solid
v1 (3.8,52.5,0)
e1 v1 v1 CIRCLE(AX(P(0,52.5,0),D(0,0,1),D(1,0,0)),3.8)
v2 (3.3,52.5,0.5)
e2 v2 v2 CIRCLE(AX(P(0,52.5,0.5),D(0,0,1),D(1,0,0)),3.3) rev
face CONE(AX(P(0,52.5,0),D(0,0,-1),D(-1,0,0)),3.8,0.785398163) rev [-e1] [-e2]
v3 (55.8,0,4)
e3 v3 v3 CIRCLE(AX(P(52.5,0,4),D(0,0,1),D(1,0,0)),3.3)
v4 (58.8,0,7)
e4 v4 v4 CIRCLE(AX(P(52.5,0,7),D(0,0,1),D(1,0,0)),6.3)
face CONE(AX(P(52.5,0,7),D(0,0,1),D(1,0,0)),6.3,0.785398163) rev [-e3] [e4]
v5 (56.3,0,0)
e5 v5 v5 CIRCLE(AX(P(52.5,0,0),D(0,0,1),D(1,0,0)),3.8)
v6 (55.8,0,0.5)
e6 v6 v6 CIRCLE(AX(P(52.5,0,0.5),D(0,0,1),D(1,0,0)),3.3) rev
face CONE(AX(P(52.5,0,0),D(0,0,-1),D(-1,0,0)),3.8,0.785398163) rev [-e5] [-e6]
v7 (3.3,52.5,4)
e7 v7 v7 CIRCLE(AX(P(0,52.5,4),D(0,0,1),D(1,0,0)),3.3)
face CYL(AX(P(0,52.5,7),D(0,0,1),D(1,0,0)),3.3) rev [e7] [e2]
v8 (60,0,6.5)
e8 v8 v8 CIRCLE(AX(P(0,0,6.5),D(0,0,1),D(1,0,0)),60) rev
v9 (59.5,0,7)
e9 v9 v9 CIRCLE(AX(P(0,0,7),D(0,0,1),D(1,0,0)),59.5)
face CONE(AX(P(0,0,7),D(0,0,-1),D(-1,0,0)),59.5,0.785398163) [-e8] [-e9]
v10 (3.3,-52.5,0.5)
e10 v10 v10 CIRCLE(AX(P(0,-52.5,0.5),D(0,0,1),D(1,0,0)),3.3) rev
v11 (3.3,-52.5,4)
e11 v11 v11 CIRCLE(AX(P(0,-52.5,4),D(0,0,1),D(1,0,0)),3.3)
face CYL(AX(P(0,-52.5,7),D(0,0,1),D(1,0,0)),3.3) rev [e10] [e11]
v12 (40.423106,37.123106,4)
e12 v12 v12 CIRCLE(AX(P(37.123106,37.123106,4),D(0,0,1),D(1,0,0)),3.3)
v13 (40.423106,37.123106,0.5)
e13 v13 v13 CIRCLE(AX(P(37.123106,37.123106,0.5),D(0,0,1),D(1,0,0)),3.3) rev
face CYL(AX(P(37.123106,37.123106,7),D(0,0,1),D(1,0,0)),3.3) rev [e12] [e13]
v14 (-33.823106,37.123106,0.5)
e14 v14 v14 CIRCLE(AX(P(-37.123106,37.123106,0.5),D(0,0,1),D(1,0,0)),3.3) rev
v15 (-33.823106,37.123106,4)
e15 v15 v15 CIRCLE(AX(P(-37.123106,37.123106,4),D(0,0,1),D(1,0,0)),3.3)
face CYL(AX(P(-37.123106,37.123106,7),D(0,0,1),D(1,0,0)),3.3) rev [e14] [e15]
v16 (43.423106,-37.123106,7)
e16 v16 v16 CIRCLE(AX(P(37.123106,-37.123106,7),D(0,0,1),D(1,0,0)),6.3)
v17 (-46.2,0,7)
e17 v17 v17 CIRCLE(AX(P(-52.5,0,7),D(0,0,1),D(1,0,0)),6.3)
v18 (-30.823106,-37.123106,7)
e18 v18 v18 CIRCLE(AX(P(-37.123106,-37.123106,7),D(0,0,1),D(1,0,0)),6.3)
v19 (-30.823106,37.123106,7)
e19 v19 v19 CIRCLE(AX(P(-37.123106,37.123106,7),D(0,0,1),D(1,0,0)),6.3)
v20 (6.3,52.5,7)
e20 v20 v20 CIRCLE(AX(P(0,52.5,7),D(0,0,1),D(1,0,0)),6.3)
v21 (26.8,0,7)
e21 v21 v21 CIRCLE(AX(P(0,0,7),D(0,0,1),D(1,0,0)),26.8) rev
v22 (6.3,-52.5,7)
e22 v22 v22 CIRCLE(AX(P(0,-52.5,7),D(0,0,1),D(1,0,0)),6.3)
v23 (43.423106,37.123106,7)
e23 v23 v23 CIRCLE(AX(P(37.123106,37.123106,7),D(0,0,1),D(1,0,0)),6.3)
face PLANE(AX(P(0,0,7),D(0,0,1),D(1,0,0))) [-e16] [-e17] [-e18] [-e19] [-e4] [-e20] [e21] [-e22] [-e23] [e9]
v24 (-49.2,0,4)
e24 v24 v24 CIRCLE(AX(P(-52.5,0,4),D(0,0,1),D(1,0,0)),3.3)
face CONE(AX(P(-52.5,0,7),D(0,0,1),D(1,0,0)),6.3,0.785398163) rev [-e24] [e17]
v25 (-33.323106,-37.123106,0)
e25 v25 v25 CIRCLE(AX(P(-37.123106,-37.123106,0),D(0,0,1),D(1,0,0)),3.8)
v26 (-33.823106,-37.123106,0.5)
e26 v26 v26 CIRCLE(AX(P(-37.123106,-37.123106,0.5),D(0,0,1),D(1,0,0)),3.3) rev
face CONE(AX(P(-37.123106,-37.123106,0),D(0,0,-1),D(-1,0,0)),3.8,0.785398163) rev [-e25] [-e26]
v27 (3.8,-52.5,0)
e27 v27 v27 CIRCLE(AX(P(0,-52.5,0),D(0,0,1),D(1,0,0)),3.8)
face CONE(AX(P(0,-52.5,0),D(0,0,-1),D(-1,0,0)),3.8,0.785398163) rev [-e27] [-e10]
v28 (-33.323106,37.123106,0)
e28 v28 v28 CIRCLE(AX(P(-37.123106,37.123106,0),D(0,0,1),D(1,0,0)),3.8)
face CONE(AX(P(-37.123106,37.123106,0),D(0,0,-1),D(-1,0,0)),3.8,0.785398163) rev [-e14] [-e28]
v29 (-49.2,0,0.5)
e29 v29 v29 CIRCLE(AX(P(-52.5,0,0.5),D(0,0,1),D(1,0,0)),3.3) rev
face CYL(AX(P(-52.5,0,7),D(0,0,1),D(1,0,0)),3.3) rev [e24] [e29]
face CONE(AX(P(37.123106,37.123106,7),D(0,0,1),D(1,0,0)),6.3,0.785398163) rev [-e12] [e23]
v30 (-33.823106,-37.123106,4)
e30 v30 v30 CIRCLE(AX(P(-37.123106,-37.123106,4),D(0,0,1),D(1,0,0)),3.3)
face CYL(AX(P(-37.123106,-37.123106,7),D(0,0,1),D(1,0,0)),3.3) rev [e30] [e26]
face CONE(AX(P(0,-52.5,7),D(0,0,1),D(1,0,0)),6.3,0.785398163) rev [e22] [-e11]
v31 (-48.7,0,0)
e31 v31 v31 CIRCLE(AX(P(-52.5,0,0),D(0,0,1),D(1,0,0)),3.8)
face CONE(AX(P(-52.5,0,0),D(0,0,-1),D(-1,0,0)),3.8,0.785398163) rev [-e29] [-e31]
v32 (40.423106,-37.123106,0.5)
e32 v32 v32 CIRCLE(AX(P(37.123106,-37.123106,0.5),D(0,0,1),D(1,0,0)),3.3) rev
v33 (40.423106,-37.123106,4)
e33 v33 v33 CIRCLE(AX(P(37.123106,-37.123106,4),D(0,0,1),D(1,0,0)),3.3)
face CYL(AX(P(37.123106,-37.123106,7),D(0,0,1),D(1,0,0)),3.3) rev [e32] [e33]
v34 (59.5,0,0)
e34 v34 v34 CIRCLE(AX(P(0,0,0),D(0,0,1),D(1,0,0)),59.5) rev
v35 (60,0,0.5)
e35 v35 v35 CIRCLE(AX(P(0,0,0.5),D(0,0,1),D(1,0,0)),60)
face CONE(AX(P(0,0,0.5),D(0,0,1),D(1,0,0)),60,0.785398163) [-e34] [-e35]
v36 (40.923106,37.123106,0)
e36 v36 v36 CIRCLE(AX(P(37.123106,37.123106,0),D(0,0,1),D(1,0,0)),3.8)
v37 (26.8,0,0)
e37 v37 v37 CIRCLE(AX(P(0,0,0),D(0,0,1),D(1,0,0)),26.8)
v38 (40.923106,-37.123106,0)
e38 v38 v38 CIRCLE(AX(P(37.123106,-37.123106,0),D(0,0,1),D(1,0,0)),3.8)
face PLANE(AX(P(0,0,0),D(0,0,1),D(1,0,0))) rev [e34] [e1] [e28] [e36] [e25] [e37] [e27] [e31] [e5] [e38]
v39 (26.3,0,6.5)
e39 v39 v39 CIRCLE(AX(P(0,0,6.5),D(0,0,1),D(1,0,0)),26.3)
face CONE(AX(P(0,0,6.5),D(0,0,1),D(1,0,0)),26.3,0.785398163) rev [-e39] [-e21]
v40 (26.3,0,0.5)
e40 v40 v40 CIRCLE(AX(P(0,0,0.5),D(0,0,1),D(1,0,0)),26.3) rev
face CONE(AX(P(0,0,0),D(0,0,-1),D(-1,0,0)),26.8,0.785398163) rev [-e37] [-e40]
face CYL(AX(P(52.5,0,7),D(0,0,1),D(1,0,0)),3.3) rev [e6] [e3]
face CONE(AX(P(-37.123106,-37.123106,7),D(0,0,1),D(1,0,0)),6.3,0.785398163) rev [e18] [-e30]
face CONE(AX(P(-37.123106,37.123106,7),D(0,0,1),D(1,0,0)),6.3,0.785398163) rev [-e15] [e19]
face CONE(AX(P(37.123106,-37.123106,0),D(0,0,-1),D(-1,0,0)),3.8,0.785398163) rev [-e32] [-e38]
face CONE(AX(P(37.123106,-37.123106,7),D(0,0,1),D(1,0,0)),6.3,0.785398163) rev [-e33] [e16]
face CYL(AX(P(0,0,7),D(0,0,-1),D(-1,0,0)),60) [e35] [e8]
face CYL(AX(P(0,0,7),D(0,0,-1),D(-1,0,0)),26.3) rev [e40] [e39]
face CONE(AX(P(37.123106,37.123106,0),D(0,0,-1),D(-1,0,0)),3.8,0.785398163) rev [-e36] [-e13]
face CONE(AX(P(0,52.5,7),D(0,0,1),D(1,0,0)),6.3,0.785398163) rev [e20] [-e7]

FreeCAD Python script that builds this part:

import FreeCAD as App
import Part
import Sketcher
Q = App.Units.Quantity


def edges_at(feature, points):
    """Names of the edges that pass closest to the given points."""
    edges = feature.Shape.Edges
    near = lambda p: min(range(len(edges)), key=lambda i: edges[i].distToShape(Part.Vertex(*p))[0])
    return sorted({f"Edge{near(p) + 1}" for p in points})

doc = App.newDocument("Part")
params = doc.addObject("Spreadsheet::Sheet", "Params")
for row, (alias, value) in enumerate([
    ("sketch1_diameter", "120 mm"),
    ("sketch1_diameter2", "52.6 mm"),
    ("pad1_length", "7 mm"),
    ("sketch2_diameter", "6.6 mm"),
    ("hole_diameter", "6.6 mm"),
    ("hole_csink_diameter", "12.6 mm"),
    ("chamfer_size", "0.5 mm"),
], start=1):
    params.set(f"A{row}", alias)
    params.set(f"B{row}", "=" + value)
    params.setAlias(f"B{row}", alias)

body = doc.addObject("PartDesign::Body", "Body")

# Sketch on XY plane
sketch1 = body.newObject("Sketcher::SketchObject", "Sketch")
sketch1.AttachmentSupport = (doc.getObject("XY_Plane"), [""])
sketch1.MapMode = "FlatFace"
sketch1.addGeometry(Part.Circle(App.Vector(0, 0, 0), App.Vector(0, 0, 1), 60), False)
sketch1.addGeometry(Part.Circle(App.Vector(0, 0, 0), App.Vector(0, 0, 1), 26.3), False)
sketch1.addConstraint(Sketcher.Constraint("Coincident", 0, 3, -1, 1))
sketch1.addConstraint(Sketcher.Constraint("Coincident", 1, 3, -1, 1))
sketch1.addConstraint(Sketcher.Constraint("Diameter", 0, Q("120 mm")))
sketch1.addConstraint(Sketcher.Constraint("Diameter", 1, Q("52.6 mm")))
sketch1.setExpression("Constraints[2]", "Params.sketch1_diameter")
sketch1.setExpression("Constraints[3]", "Params.sketch1_diameter2")
pad1 = body.newObject("PartDesign::Pad", "Pad")
pad1.Profile = sketch1
pad1.setExpression("Length", "Params.pad1_length")

# Sketch on XY plane
sketch2 = body.newObject("Sketcher::SketchObject", "Sketch001")
sketch2.AttachmentSupport = (doc.getObject("XY_Plane"), [""])
sketch2.MapMode = "FlatFace"
sketch2.AttachmentOffset = App.Placement(App.Vector(0, 0, 7), App.Rotation())
sketch2.addGeometry(Part.Circle(App.Vector(-37.123106, 37.123106, 0), App.Vector(0, 0, 1), 3.3), False)
sketch2.addGeometry(Part.Circle(App.Vector(0, 52.5, 0), App.Vector(0, 0, 1), 3.3), False)
sketch2.addGeometry(Part.Circle(App.Vector(37.123106, 37.123106, 0), App.Vector(0, 0, 1), 3.3), False)
sketch2.addGeometry(Part.Circle(App.Vector(52.5, 0, 0), App.Vector(0, 0, 1), 3.3), False)
sketch2.addGeometry(Part.Circle(App.Vector(37.123106, -37.123106, 0), App.Vector(0, 0, 1), 3.3), False)
sketch2.addGeometry(Part.Circle(App.Vector(0, -52.5, 0), App.Vector(0, 0, 1), 3.3), False)
sketch2.addGeometry(Part.Circle(App.Vector(-37.123106, -37.123106, 0), App.Vector(0, 0, 1), 3.3), False)
sketch2.addGeometry(Part.Circle(App.Vector(-52.5, 0, 0), App.Vector(0, 0, 1), 3.3), False)
sketch2.addConstraint(Sketcher.Constraint("Equal", 0, 1))
sketch2.addConstraint(Sketcher.Constraint("Equal", 1, 2))
sketch2.addConstraint(Sketcher.Constraint("Equal", 2, 3))
sketch2.addConstraint(Sketcher.Constraint("Equal", 3, 4))
sketch2.addConstraint(Sketcher.Constraint("Equal", 4, 5))
sketch2.addConstraint(Sketcher.Constraint("Equal", 5, 6))
sketch2.addConstraint(Sketcher.Constraint("Equal", 6, 7))
sketch2.addConstraint(Sketcher.Constraint("Symmetric", 0, 3, 4, 3, -1, 1))
sketch2.addConstraint(Sketcher.Constraint("Symmetric", 1, 3, 5, 3, -1, 1))
sketch2.addConstraint(Sketcher.Constraint("Symmetric", 2, 3, 6, 3, -1, 1))
sketch2.addConstraint(Sketcher.Constraint("Symmetric", 3, 3, 7, 3, -1, 1))
sketch2.addConstraint(Sketcher.Constraint("Symmetric", 0, 3, 2, 3, -2))
sketch2.addConstraint(Sketcher.Constraint("PointOnObject", 1, 3, -2))
sketch2.addConstraint(Sketcher.Constraint("PointOnObject", 3, 3, -1))
sketch2.addConstraint(Sketcher.Constraint("Diameter", 0, Q("6.6 mm")))
sketch2.addConstraint(Sketcher.Constraint("DistanceY", 5, 3, 1, 3, Q("105 mm")))
sketch2.addConstraint(Sketcher.Constraint("DistanceX", -1, 1, 3, 3, Q("52.5 mm")))
sketch2.addConstraint(Sketcher.Constraint("DistanceX", 0, 3, -1, 1, Q("37.123106 mm")))
sketch2.addConstraint(Sketcher.Constraint("DistanceY", -1, 1, 0, 3, Q("37.123106 mm")))
sketch2.setExpression("Constraints[14]", "Params.sketch2_diameter")
doc.recompute()
hole = body.newObject("PartDesign::Hole", "Hole")
hole.Profile = sketch2
hole.ThreadType = "None"
hole.setExpression("Diameter", "Params.hole_diameter")
hole.DepthType = "ThroughAll"
hole.HoleCutType = "Countersink"
hole.setExpression("HoleCutDiameter", "Params.hole_csink_diameter")
hole.HoleCutCountersinkAngle = 90
doc.recompute()

chamfer = body.newObject("PartDesign::Chamfer", "Chamfer")
chamfer.Base = (hole, edges_at(hole, [
    (-33.823, 37.123, 0),
    (-60, 0, 0),
    (-49.2, 0, 0),
    (-33.823, -37.123, 0),
    (3.3, -52.5, 0),
    (40.423, -37.123, 0),
    (55.8, 0, 0),
    (-60, 0, 7),
    (-26.3, 0, 0),
    (40.423, 37.123, 0),
    (-26.3, 0, 7),
    (3.3, 52.5, 0),
]))
chamfer.setExpression("Size", "Params.chamfer_size")

doc.recompute()
